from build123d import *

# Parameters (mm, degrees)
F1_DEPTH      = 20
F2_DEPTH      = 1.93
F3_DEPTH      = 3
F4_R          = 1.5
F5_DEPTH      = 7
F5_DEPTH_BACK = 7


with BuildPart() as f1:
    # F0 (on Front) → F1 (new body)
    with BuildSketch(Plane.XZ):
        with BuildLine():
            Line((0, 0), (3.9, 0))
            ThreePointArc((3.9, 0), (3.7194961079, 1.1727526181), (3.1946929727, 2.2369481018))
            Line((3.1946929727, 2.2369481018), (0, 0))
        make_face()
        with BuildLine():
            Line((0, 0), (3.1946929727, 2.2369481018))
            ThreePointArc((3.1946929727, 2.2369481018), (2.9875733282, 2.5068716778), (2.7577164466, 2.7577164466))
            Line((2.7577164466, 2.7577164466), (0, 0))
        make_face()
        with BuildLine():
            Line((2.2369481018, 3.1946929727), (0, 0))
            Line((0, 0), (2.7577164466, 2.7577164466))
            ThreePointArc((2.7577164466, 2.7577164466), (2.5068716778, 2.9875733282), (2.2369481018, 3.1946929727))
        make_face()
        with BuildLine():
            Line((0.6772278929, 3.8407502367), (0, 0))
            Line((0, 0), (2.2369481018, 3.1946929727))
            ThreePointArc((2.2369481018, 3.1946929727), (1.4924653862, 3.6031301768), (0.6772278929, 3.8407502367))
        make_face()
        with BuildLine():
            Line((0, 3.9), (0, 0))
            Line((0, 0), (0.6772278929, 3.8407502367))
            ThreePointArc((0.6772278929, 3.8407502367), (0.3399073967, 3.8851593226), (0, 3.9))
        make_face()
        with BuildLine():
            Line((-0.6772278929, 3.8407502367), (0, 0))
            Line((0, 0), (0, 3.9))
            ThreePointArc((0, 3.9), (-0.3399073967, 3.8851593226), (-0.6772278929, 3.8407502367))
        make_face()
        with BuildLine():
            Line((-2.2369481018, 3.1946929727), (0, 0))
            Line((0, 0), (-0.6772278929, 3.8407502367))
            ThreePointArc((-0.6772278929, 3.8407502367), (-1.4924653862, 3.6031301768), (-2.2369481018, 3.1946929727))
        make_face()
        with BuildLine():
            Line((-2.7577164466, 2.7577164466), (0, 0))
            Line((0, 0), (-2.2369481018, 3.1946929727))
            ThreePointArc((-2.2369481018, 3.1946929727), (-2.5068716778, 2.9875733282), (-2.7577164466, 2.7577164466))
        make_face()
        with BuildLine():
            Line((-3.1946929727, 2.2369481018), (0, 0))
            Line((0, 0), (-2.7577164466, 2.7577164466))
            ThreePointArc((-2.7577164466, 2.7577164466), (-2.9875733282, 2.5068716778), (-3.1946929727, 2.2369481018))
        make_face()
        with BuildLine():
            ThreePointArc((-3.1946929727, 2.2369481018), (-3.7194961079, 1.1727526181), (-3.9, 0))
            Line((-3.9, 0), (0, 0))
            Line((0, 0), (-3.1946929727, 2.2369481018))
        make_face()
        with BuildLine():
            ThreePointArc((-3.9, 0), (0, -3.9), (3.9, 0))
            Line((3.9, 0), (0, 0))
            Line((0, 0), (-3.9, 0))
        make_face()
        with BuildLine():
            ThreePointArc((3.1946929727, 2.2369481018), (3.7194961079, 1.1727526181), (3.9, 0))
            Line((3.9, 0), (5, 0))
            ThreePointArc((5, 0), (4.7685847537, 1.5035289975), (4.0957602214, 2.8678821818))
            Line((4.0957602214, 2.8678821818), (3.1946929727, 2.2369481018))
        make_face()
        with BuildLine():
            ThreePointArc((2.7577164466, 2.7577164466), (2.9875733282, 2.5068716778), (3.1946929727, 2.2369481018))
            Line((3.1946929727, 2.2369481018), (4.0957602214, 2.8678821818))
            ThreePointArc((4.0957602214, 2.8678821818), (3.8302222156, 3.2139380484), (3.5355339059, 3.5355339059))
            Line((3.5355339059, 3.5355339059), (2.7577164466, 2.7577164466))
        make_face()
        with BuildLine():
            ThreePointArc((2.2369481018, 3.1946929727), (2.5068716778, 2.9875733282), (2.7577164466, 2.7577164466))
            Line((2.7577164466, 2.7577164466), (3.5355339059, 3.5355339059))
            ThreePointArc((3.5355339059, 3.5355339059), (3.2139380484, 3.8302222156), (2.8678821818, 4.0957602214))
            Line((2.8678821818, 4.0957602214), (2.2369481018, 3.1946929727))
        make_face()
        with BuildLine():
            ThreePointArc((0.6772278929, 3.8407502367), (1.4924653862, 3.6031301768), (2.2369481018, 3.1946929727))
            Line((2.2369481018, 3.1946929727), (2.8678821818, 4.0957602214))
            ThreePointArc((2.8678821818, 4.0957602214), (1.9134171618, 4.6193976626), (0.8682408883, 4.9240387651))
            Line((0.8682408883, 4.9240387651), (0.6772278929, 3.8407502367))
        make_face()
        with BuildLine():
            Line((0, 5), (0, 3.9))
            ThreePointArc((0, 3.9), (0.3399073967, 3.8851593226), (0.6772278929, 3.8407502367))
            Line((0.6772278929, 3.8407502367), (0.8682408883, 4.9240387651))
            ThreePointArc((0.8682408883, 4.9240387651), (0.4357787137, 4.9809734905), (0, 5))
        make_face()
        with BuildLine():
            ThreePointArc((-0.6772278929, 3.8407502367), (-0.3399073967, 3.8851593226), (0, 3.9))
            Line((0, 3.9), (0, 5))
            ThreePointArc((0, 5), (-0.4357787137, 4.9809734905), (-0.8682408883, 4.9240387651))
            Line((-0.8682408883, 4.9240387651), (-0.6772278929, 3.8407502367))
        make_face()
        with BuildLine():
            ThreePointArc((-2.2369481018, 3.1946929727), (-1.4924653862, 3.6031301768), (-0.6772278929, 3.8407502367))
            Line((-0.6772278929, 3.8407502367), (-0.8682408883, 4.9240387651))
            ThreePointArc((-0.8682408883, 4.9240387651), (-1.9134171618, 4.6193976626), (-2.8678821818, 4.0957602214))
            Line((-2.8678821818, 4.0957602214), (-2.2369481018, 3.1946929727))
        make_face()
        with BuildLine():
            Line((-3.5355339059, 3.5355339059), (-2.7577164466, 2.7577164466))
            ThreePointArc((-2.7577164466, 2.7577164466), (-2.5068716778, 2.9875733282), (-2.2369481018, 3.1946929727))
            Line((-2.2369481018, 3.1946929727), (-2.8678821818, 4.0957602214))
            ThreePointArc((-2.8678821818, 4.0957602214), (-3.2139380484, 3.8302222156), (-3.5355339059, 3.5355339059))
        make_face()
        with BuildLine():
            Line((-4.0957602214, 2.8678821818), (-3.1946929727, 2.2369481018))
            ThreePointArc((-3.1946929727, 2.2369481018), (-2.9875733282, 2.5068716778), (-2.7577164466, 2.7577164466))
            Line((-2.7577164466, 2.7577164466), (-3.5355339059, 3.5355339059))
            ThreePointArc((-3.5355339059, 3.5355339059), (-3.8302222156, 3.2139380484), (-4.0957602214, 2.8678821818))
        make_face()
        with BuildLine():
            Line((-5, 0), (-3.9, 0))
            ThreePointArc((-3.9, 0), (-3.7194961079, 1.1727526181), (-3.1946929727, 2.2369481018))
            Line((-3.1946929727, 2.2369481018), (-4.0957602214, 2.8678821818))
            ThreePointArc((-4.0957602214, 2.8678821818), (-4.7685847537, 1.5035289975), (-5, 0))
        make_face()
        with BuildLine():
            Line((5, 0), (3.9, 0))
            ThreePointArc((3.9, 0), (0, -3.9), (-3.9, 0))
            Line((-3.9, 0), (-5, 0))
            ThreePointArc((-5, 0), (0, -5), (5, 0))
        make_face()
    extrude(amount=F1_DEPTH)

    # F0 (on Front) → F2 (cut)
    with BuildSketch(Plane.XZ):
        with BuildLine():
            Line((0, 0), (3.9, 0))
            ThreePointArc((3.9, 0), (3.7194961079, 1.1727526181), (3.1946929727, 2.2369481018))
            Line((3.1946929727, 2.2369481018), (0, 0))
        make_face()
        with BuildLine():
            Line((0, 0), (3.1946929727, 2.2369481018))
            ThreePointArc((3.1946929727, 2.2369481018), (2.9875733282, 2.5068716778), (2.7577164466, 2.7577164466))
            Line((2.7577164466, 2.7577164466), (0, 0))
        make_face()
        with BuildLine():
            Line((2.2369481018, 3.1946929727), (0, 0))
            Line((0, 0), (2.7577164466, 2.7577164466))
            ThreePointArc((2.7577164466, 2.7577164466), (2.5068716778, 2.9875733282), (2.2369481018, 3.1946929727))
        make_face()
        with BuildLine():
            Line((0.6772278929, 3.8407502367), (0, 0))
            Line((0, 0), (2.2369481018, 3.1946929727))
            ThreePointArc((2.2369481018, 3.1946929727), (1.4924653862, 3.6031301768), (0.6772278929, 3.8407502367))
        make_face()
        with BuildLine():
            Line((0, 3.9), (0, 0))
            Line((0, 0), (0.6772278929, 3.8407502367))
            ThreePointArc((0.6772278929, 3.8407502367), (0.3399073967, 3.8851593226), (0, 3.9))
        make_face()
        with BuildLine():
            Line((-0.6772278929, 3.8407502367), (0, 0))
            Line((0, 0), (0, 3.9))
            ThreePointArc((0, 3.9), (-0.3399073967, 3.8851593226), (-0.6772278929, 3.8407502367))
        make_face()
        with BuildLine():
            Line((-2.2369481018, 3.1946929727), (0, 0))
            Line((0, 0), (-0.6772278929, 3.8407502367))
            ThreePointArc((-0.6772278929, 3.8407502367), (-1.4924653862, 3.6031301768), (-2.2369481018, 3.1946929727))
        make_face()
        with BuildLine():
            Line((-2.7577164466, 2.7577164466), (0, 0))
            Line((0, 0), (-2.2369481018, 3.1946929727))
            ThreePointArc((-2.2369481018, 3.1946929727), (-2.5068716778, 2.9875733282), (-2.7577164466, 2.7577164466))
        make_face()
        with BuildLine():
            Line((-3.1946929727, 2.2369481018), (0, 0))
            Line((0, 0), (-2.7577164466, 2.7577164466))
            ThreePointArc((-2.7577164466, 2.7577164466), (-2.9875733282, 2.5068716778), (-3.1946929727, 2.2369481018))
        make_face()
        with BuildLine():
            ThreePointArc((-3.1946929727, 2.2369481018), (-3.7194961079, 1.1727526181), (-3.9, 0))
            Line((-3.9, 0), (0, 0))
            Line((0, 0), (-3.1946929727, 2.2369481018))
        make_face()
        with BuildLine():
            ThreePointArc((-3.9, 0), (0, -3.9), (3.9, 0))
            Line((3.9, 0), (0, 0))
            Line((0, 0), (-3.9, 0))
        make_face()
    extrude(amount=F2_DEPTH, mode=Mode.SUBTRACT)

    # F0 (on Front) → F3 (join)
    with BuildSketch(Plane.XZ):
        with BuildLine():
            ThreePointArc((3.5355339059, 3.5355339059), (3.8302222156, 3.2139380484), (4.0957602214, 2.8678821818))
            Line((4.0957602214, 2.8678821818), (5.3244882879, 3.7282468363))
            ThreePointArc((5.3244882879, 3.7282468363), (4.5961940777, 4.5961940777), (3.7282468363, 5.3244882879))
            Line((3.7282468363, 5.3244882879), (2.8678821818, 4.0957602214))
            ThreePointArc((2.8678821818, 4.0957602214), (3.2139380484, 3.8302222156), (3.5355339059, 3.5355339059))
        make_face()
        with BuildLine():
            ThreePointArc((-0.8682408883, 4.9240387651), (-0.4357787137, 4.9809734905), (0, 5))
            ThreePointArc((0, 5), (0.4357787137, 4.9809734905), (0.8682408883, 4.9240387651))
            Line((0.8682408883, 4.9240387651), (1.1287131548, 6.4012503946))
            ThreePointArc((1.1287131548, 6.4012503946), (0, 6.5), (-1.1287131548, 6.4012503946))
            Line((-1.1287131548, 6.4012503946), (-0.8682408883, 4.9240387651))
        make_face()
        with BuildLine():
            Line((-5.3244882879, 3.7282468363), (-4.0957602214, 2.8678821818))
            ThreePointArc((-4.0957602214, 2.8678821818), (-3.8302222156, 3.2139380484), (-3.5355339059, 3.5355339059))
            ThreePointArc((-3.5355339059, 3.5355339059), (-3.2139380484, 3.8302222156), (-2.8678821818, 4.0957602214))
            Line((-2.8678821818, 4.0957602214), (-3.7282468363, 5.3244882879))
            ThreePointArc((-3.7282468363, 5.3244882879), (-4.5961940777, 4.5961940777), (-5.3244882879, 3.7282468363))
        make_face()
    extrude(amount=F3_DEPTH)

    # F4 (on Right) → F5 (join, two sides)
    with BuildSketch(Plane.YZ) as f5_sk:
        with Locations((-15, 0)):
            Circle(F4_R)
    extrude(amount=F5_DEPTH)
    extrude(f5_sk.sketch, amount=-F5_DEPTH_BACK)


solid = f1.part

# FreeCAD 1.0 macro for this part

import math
import FreeCAD as App
import Part
import Sketcher
Q = App.Units.Quantity

doc = App.newDocument("Part")
body = doc.addObject("PartDesign::Body", "Body")

sketch1 = body.newObject("Sketcher::SketchObject", "Sketch")
sketch1.AttachmentSupport = (doc.getObject("XZ_Plane"), [""])
sketch1.MapMode = "FlatFace"
sketch1.addGeometry([
    Part.ArcOfCircle(Part.Circle(App.Vector(0, 0, 0), App.Vector(0, 0, 1), 5), math.radians(0), math.radians(35)),
    Part.ArcOfCircle(Part.Circle(App.Vector(0, 0, 0), App.Vector(0, 0, 1), 5), math.radians(35), math.radians(45)),
    Part.ArcOfCircle(Part.Circle(App.Vector(0, 0, 0), App.Vector(0, 0, 1), 5), math.radians(45), math.radians(55)),
    Part.ArcOfCircle(Part.Circle(App.Vector(0, 0, 0), App.Vector(0, 0, 1), 5), math.radians(55), math.radians(80)),
    Part.ArcOfCircle(Part.Circle(App.Vector(0, 0, 0), App.Vector(0, 0, 1), 5), math.radians(80), math.radians(90)),
    Part.ArcOfCircle(Part.Circle(App.Vector(0, 0, 0), App.Vector(0, 0, 1), 5), math.radians(90), math.radians(100)),
    Part.ArcOfCircle(Part.Circle(App.Vector(0, 0, 0), App.Vector(0, 0, 1), 5), math.radians(100), math.radians(125)),
    Part.ArcOfCircle(Part.Circle(App.Vector(0, 0, 0), App.Vector(0, 0, 1), 5), math.radians(125), math.radians(135)),
    Part.ArcOfCircle(Part.Circle(App.Vector(0, 0, 0), App.Vector(0, 0, 1), 5), math.radians(135), math.radians(145)),
    Part.ArcOfCircle(Part.Circle(App.Vector(0, 0, 0), App.Vector(0, 0, 1), 5), math.radians(145), math.radians(180)),
    Part.ArcOfCircle(Part.Circle(App.Vector(0, 0, 0), App.Vector(0, 0, 1), 5), math.radians(180), math.radians(360)),
], False)
sketch1.addConstraint([
    Sketcher.Constraint("Tangent", 0, 2, 1, 1),
    Sketcher.Constraint("Tangent", 1, 2, 2, 1),
    Sketcher.Constraint("Tangent", 2, 2, 3, 1),
    Sketcher.Constraint("Tangent", 3, 2, 4, 1),
    Sketcher.Constraint("Tangent", 4, 2, 5, 1),
    Sketcher.Constraint("Tangent", 5, 2, 6, 1),
    Sketcher.Constraint("Tangent", 6, 2, 7, 1),
    Sketcher.Constraint("Tangent", 7, 2, 8, 1),
    Sketcher.Constraint("Tangent", 8, 2, 9, 1),
    Sketcher.Constraint("Tangent", 9, 2, 10, 1),
    Sketcher.Constraint("Tangent", 10, 2, 0, 1),
    Sketcher.Constraint("Coincident", 0, 3, -1, 1),
    Sketcher.Constraint("Coincident", 2, 3, -1, 1),
    Sketcher.Constraint("Coincident", 4, 3, -1, 1),
    Sketcher.Constraint("Coincident", 6, 3, -1, 1),
    Sketcher.Constraint("Coincident", 8, 3, -1, 1),
    Sketcher.Constraint("PointOnObject", 4, 2, -2),
    Sketcher.Constraint("PointOnObject", 9, 2, -1),
    Sketcher.Constraint("PointOnObject", 10, 2, -1),
    Sketcher.Constraint("Horizontal", 3, 2, 5, 2),
    Sketcher.Constraint("Horizontal", 2, 2, 6, 2),
    Sketcher.Constraint("Horizontal", 1, 2, 7, 2),
    Sketcher.Constraint("Horizontal", 0, 2, 8, 2),
    Sketcher.Constraint("Radius", 0, 5.0),
    Sketcher.Constraint("DistanceX", -1, 1, 0, 2, 4.09576),
    Sketcher.Constraint("DistanceY", -1, 1, 2, 2, 4.09576),
    Sketcher.Constraint("DistanceX", -1, 1, 3, 2, 0.868241),
    Sketcher.Constraint("DistanceY", 0, 2, 1, 2, 0.667652),
])
pad1 = body.newObject("PartDesign::Pad", "Pad")
pad1.Profile = sketch1
pad1.Length = 20

sketch2 = body.newObject("Sketcher::SketchObject", "Sketch001")
sketch2.AttachmentSupport = (doc.getObject("XZ_Plane"), [""])
sketch2.MapMode = "FlatFace"
sketch2.addGeometry([
    Part.ArcOfCircle(Part.Circle(App.Vector(0, 0, 0), App.Vector(0, 0, 1), 3.9), math.radians(0), math.radians(35)),
    Part.ArcOfCircle(Part.Circle(App.Vector(0, 0, 0), App.Vector(0, 0, 1), 3.9), math.radians(35), math.radians(45)),
    Part.ArcOfCircle(Part.Circle(App.Vector(0, 0, 0), App.Vector(0, 0, 1), 3.9), math.radians(45), math.radians(55)),
    Part.ArcOfCircle(Part.Circle(App.Vector(0, 0, 0), App.Vector(0, 0, 1), 3.9), math.radians(55), math.radians(80)),
    Part.ArcOfCircle(Part.Circle(App.Vector(0, 0, 0), App.Vector(0, 0, 1), 3.9), math.radians(80), math.radians(90)),
    Part.ArcOfCircle(Part.Circle(App.Vector(0, 0, 0), App.Vector(0, 0, 1), 3.9), math.radians(90), math.radians(100)),
    Part.ArcOfCircle(Part.Circle(App.Vector(0, 0, 0), App.Vector(0, 0, 1), 3.9), math.radians(100), math.radians(125)),
    Part.ArcOfCircle(Part.Circle(App.Vector(0, 0, 0), App.Vector(0, 0, 1), 3.9), math.radians(125), math.radians(135)),
    Part.ArcOfCircle(Part.Circle(App.Vector(0, 0, 0), App.Vector(0, 0, 1), 3.9), math.radians(135), math.radians(145)),
    Part.ArcOfCircle(Part.Circle(App.Vector(0, 0, 0), App.Vector(0, 0, 1), 3.9), math.radians(145), math.radians(180)),
    Part.ArcOfCircle(Part.Circle(App.Vector(0, 0, 0), App.Vector(0, 0, 1), 3.9), math.radians(180), math.radians(360)),
], False)
sketch2.addConstraint([
    Sketcher.Constraint("Tangent", 0, 2, 1, 1),
    Sketcher.Constraint("Tangent", 1, 2, 2, 1),
    Sketcher.Constraint("Tangent", 2, 2, 3, 1),
    Sketcher.Constraint("Tangent", 3, 2, 4, 1),
    Sketcher.Constraint("Tangent", 4, 2, 5, 1),
    Sketcher.Constraint("Tangent", 5, 2, 6, 1),
    Sketcher.Constraint("Tangent", 6, 2, 7, 1),
    Sketcher.Constraint("Tangent", 7, 2, 8, 1),
    Sketcher.Constraint("Tangent", 8, 2, 9, 1),
    Sketcher.Constraint("Tangent", 9, 2, 10, 1),
    Sketcher.Constraint("Tangent", 10, 2, 0, 1),
    Sketcher.Constraint("Coincident", 0, 3, -1, 1),
    Sketcher.Constraint("Coincident", 2, 3, -1, 1),
    Sketcher.Constraint("Coincident", 4, 3, -1, 1),
    Sketcher.Constraint("Coincident", 6, 3, -1, 1),
    Sketcher.Constraint("Coincident", 8, 3, -1, 1),
    Sketcher.Constraint("PointOnObject", 4, 2, -2),
    Sketcher.Constraint("PointOnObject", 9, 2, -1),
    Sketcher.Constraint("PointOnObject", 10, 2, -1),
    Sketcher.Constraint("Horizontal", 3, 2, 5, 2),
    Sketcher.Constraint("Horizontal", 2, 2, 6, 2),
    Sketcher.Constraint("Horizontal", 1, 2, 7, 2),
    Sketcher.Constraint("Horizontal", 0, 2, 8, 2),
    Sketcher.Constraint("Radius", 0, 3.9),
    Sketcher.Constraint("DistanceY", -1, 1, 0, 2, 2.236948),
    Sketcher.Constraint("DistanceX", -1, 1, 2, 2, 2.236948),
    Sketcher.Constraint("DistanceY", -1, 1, 3, 2, 3.84075),
    Sketcher.Constraint("DistanceY", 0, 2, 1, 2, 0.520768),
])
pocket1 = body.newObject("PartDesign::Pocket", "Pocket")
pocket1.Profile = sketch2
pocket1.Length = 1.93
pocket1.Reversed = True

sketch3 = body.newObject("Sketcher::SketchObject", "Sketch002")
sketch3.AttachmentSupport = (doc.getObject("XZ_Plane"), [""])
sketch3.MapMode = "FlatFace"
sketch3.addGeometry([
    Part.ArcOfCircle(Part.Circle(App.Vector(0, 0, 0), App.Vector(0, 0, 1), 5), math.radians(35), math.radians(45)),
    Part.LineSegment(App.Vector(4.1, 2.9, 0), App.Vector(5.3, 3.7, 0)),
    Part.ArcOfCircle(Part.Circle(App.Vector(0, 0, 0), App.Vector(0, 0, 1), 6.5), math.radians(35), math.radians(55)),
    Part.LineSegment(App.Vector(3.7, 5.3, 0), App.Vector(2.9, 4.1, 0)),
    Part.ArcOfCircle(Part.Circle(App.Vector(0, 0, 0), App.Vector(0, 0, 1), 5), math.radians(45), math.radians(55)),
    Part.ArcOfCircle(Part.Circle(App.Vector(0, 0, 0), App.Vector(0, 0, 1), 5), math.radians(90), math.radians(100)),
    Part.ArcOfCircle(Part.Circle(App.Vector(0, 0, 0), App.Vector(0, 0, 1), 5), math.radians(80), math.radians(90)),
    Part.LineSegment(App.Vector(0.9, 4.9, 0), App.Vector(1.1, 6.4, 0)),
    Part.ArcOfCircle(Part.Circle(App.Vector(0, 0, 0), App.Vector(0, 0, 1), 6.5), math.radians(80), math.radians(100)),
    Part.LineSegment(App.Vector(-1.1, 6.4, 0), App.Vector(-0.9, 4.9, 0)),
    Part.LineSegment(App.Vector(-5.3, 3.7, 0), App.Vector(-4.1, 2.9, 0)),
    Part.ArcOfCircle(Part.Circle(App.Vector(0, 0, 0), App.Vector(0, 0, 1), 5), math.radians(135), math.radians(145)),
    Part.ArcOfCircle(Part.Circle(App.Vector(0, 0, 0), App.Vector(0, 0, 1), 5), math.radians(125), math.radians(135)),
    Part.LineSegment(App.Vector(-2.9, 4.1, 0), App.Vector(-3.7, 5.3, 0)),
    Part.ArcOfCircle(Part.Circle(App.Vector(0, 0, 0), App.Vector(0, 0, 1), 6.5), math.radians(125), math.radians(145)),
], False)
sketch3.addConstraint([
    Sketcher.Constraint("Coincident", 0, 1, 1, 1),
    Sketcher.Constraint("Coincident", 1, 2, 2, 1),
    Sketcher.Constraint("Coincident", 2, 2, 3, 1),
    Sketcher.Constraint("Coincident", 3, 2, 4, 2),
    Sketcher.Constraint("Tangent", 4, 1, 0, 2),
    Sketcher.Constraint("Tangent", 5, 1, 6, 2),
    Sketcher.Constraint("Coincident", 6, 1, 7, 1),
    Sketcher.Constraint("Coincident", 7, 2, 8, 1),
    Sketcher.Constraint("Coincident", 8, 2, 9, 1),
    Sketcher.Constraint("Coincident", 9, 2, 5, 2),
    Sketcher.Constraint("Coincident", 10, 2, 11, 2),
    Sketcher.Constraint("Tangent", 11, 1, 12, 2),
    Sketcher.Constraint("Coincident", 12, 1, 13, 1),
    Sketcher.Constraint("Coincident", 13, 2, 14, 1),
    Sketcher.Constraint("Coincident", 14, 2, 10, 1),
    Sketcher.Constraint("Coincident", 0, 3, -1, 1),
    Sketcher.Constraint("Coincident", 2, 3, -1, 1),
    Sketcher.Constraint("Coincident", 5, 3, -1, 1),
    Sketcher.Constraint("Coincident", 8, 3, -1, 1),
    Sketcher.Constraint("Coincident", 11, 3, -1, 1),
    Sketcher.Constraint("Coincident", 14, 3, -1, 1),
    Sketcher.Constraint("Equal", 0, 4),
    Sketcher.Constraint("Equal", 4, 5),
    Sketcher.Constraint("Equal", 5, 6),
    Sketcher.Constraint("Equal", 2, 8),
    Sketcher.Constraint("Equal", 6, 11),
    Sketcher.Constraint("Equal", 11, 12),
    Sketcher.Constraint("Equal", 8, 14),
    Sketcher.Constraint("PointOnObject", 5, 1, -2),
    Sketcher.Constraint("Perpendicular", 3, 10),
    Sketcher.Constraint("Perpendicular", 1, 13),
    Sketcher.Constraint("Horizontal", 7, 2, 8, 2),
    Sketcher.Constraint("Horizontal", 6, 1, 9, 2),
    Sketcher.Constraint("Horizontal", 0, 1, 10, 2),
    Sketcher.Constraint("Horizontal", 4, 1, 11, 1),
    Sketcher.Constraint("Horizontal", 3, 2, 12, 1),
    Sketcher.Constraint("Horizontal", 2, 2, 13, 2),
    Sketcher.Constraint("Radius", 0, 5.0),
    Sketcher.Constraint("Radius", 2, 6.5),
    Sketcher.Constraint("Angle", 1, Q("35 deg")),
    Sketcher.Constraint("Angle", 7, Q("80 deg")),
    Sketcher.Constraint("DistanceX", -1, 1, 0, 1, 4.09576),
    Sketcher.Constraint("DistanceY", -1, 1, 2, 2, 5.324488),
    Sketcher.Constraint("DistanceX", -1, 1, 6, 1, 0.868241),
    Sketcher.Constraint("DistanceX", 3, 2, 4, 1, 0.667652),
])
pad2 = body.newObject("PartDesign::Pad", "Pad001")
pad2.Profile = sketch3
pad2.Length = 3

sketch4 = body.newObject("Sketcher::SketchObject", "Sketch003")
sketch4.AttachmentSupport = (doc.getObject("YZ_Plane"), [""])
sketch4.MapMode = "FlatFace"
sketch4.addGeometry(Part.Circle(App.Vector(-15, 0, 0), App.Vector(0, 0, 1), 1.5), False)
sketch4.addConstraint([
    Sketcher.Constraint("PointOnObject", 0, 3, -1),
    Sketcher.Constraint("Diameter", 0, 3.0),
    Sketcher.Constraint("DistanceX", 0, 3, -1, 1, 15.0),
])
pad3 = body.newObject("PartDesign::Pad", "Pad002")
pad3.Profile = sketch4
pad3.Type = "TwoLengths"
pad3.Length = 7
pad3.Length2 = 7

doc.recompute()
